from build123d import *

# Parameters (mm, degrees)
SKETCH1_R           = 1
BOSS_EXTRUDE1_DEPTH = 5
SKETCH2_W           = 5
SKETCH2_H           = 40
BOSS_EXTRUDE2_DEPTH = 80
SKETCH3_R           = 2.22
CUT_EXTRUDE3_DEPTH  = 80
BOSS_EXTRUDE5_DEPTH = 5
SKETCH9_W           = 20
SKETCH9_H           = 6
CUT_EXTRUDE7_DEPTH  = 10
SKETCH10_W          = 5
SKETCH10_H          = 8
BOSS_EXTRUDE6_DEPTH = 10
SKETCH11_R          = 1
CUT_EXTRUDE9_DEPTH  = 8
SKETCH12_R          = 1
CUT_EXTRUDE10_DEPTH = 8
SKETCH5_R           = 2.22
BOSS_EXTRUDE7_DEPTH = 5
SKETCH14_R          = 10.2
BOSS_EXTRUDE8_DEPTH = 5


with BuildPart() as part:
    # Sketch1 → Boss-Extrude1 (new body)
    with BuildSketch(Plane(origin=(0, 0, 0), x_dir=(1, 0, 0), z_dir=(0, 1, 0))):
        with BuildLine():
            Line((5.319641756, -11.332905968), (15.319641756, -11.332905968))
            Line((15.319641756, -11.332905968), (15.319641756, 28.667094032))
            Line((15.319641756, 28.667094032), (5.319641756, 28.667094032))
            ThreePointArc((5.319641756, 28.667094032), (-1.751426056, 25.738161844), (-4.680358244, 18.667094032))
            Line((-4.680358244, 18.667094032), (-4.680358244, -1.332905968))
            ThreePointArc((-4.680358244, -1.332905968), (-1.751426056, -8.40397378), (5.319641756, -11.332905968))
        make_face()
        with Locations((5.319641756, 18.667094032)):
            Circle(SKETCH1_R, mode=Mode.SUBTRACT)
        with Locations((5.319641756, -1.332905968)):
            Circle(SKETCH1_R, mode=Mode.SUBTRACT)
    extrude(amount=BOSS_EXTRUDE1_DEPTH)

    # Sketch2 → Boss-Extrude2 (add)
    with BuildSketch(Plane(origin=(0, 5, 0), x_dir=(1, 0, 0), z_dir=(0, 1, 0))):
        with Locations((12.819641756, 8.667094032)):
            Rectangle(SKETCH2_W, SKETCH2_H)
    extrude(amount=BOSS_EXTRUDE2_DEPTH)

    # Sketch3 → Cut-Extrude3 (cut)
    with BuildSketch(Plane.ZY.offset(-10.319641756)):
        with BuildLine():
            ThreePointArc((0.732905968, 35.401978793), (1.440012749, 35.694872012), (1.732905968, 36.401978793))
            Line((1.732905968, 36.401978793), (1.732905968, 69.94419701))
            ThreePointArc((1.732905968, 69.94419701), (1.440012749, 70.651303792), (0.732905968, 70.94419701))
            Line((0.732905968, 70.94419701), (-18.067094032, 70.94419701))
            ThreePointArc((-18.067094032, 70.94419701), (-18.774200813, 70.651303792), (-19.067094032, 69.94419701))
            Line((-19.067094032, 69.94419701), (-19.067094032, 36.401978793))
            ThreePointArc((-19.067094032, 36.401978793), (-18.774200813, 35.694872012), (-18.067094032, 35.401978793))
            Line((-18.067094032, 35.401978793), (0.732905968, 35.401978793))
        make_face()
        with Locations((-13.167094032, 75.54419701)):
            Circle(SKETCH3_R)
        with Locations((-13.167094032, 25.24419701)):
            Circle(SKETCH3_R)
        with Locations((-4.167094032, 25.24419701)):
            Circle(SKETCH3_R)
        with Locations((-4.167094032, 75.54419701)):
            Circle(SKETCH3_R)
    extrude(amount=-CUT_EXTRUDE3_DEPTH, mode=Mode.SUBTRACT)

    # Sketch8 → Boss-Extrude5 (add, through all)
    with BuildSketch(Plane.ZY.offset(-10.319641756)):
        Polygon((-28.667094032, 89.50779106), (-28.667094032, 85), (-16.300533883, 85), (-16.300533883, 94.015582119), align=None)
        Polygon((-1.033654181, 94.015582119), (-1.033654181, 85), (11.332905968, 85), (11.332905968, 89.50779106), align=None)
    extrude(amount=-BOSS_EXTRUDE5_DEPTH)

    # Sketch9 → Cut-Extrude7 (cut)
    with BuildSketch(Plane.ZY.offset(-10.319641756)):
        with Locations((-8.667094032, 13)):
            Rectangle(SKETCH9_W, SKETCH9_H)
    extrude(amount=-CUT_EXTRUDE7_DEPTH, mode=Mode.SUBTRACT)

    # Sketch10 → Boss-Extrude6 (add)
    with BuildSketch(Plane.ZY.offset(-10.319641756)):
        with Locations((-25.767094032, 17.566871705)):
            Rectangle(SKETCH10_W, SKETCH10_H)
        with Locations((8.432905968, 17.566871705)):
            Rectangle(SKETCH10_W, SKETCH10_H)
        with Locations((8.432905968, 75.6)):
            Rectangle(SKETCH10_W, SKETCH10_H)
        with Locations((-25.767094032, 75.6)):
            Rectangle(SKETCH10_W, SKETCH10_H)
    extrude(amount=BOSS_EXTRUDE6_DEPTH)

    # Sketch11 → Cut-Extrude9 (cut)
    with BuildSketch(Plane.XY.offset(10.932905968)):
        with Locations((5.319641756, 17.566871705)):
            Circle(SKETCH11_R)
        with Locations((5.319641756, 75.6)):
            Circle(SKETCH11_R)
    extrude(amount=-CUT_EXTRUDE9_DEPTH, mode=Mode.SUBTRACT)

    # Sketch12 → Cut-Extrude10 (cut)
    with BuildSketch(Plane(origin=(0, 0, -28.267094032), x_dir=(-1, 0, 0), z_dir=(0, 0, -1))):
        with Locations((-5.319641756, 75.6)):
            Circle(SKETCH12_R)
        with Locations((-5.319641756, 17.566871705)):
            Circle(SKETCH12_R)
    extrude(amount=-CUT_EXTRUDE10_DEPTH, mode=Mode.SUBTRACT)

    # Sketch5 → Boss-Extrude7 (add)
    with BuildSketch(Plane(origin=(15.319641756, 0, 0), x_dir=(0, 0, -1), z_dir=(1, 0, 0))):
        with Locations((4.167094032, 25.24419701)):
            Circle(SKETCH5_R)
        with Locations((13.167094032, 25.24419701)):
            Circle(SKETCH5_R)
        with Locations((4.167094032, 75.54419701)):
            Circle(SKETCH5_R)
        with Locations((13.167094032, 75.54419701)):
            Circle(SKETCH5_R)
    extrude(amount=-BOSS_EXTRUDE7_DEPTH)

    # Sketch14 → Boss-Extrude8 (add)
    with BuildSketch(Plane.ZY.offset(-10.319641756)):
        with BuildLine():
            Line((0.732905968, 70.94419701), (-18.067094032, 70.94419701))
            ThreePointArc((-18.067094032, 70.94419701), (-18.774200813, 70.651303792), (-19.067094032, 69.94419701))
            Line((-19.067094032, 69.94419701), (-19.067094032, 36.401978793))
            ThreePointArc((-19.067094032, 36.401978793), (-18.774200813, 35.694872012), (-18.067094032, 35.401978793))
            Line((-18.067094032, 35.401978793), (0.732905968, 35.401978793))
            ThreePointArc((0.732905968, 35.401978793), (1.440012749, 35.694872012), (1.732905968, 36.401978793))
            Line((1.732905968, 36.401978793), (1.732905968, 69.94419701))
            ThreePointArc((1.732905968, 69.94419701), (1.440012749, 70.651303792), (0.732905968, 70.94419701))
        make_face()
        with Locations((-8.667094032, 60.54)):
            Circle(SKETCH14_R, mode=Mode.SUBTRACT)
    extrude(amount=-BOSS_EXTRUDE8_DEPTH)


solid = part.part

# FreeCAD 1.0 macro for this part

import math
import FreeCAD as App
import Part
import Sketcher


def add_polygon(sketch, points):
    """Adds a closed chain of lines whose ends are joined by coincident constraints."""
    first, n = sketch.GeometryCount, len(points)
    for a, b in zip(points, points[1:] + points[:1]):
        sketch.addGeometry(Part.LineSegment(App.Vector(*a, 0), App.Vector(*b, 0)), False)
    for i in range(n):
        sketch.addConstraint(Sketcher.Constraint("Coincident", first + i, 2, first + (i + 1) % n, 1))

doc = App.newDocument("Part")
body = doc.addObject("PartDesign::Body", "Body")

sketch1 = body.newObject("Sketcher::SketchObject", "Sketch")
sketch1.AttachmentSupport = (doc.getObject("XZ_Plane"), [""])
sketch1.MapMode = "FlatFace"
sketch1.addGeometry([
    Part.LineSegment(App.Vector(5.319642, 11.332906, 0), App.Vector(15.319642, 11.332906, 0)),
    Part.LineSegment(App.Vector(15.319642, 11.332906, 0), App.Vector(15.319642, -28.667094, 0)),
    Part.LineSegment(App.Vector(15.319642, -28.667094, 0), App.Vector(5.319642, -28.667094, 0)),
    Part.ArcOfCircle(Part.Circle(App.Vector(5.319642, -18.667094, 0), App.Vector(0, 0, 1), 10), math.radians(180), math.radians(270)),
    Part.LineSegment(App.Vector(-4.680358, -18.667094, 0), App.Vector(-4.680358, 1.332906, 0)),
    Part.ArcOfCircle(Part.Circle(App.Vector(5.319642, 1.332906, 0), App.Vector(0, 0, 1), 10), math.radians(90), math.radians(180)),
    Part.Circle(App.Vector(5.319642, 1.332906, 0), App.Vector(0, 0, 1), 1),
    Part.Circle(App.Vector(5.319642, -18.667094, 0), App.Vector(0, 0, 1), 1),
], False)
sketch1.addConstraint([
    Sketcher.Constraint("Coincident", 0, 2, 1, 1),
    Sketcher.Constraint("Coincident", 1, 2, 2, 1),
    Sketcher.Constraint("Tangent", 2, 2, 3, 2),
    Sketcher.Constraint("Tangent", 3, 1, 4, 1),
    Sketcher.Constraint("Tangent", 4, 2, 5, 2),
    Sketcher.Constraint("Tangent", 5, 1, 0, 1),
    Sketcher.Constraint("Horizontal", 0),
    Sketcher.Constraint("Vertical", 1),
    Sketcher.Constraint("Horizontal", 2),
    Sketcher.Constraint("Vertical", 4),
    Sketcher.Constraint("Coincident", 6, 3, 5, 3),
    Sketcher.Constraint("Coincident", 7, 3, 3, 3),
    Sketcher.Constraint("Equal", 3, 5),
    Sketcher.Constraint("Equal", 6, 7),
    Sketcher.Constraint("Diameter", 6, 2.0),
    Sketcher.Constraint("Radius", 3, 10.0),
    Sketcher.Constraint("DistanceX", 0, 1, 0, 2, 10.0),
    Sketcher.Constraint("DistanceY", 1, 2, 1, 1, 40.0),
    Sketcher.Constraint("DistanceX", -1, 1, 3, 3, 5.319642),
    Sketcher.Constraint("DistanceY", 3, 3, -1, 1, 18.667094),
])
pad1 = body.newObject("PartDesign::Pad", "Pad")
pad1.Profile = sketch1
pad1.Length = 5
pad1.Reversed = True

sketch2 = body.newObject("Sketcher::SketchObject", "Sketch001")
sketch2.AttachmentSupport = (doc.getObject("XZ_Plane"), [""])
sketch2.MapMode = "FlatFace"
sketch2.AttachmentOffset = App.Placement(App.Vector(0, 0, -5), App.Rotation())
add_polygon(sketch2, [(10.319642, -28.667094), (10.319642, 11.332906), (15.319642, 11.332906), (15.319642, -28.667094)])
sketch2.addConstraint([
    Sketcher.Constraint("Vertical", 0),
    Sketcher.Constraint("Horizontal", 1),
    Sketcher.Constraint("Vertical", 2),
    Sketcher.Constraint("Horizontal", 3),
    Sketcher.Constraint("DistanceX", 1, 1, 1, 2, 5.0),
    Sketcher.Constraint("DistanceY", 0, 1, 0, 2, 40.0),
    Sketcher.Constraint("DistanceX", -1, 1, 0, 2, 10.319642),
    Sketcher.Constraint("DistanceY", -1, 1, 0, 2, 11.332906),
])
pad2 = body.newObject("PartDesign::Pad", "Pad001")
pad2.Profile = sketch2
pad2.Length = 80
pad2.Reversed = True

sketch3 = body.newObject("Sketcher::SketchObject", "Sketch002")
sketch3.AttachmentSupport = (doc.getObject("YZ_Plane"), [""])
sketch3.MapMode = "FlatFace"
sketch3.AttachmentOffset = App.Placement(App.Vector(0, 0, 10.319642), App.Rotation())
sketch3.addGeometry([
    Part.ArcOfCircle(Part.Circle(App.Vector(36.401979, 0.732906, 0), App.Vector(0, 0, 1), 1), math.radians(90), math.radians(180)),
    Part.LineSegment(App.Vector(36.401979, 1.732906, 0), App.Vector(69.944197, 1.732906, 0)),
    Part.ArcOfCircle(Part.Circle(App.Vector(69.944197, 0.732906, 0), App.Vector(0, 0, 1), 1), math.radians(0), math.radians(90)),
    Part.LineSegment(App.Vector(70.944197, 0.732906, 0), App.Vector(70.944197, -18.067094, 0)),
    Part.ArcOfCircle(Part.Circle(App.Vector(69.944197, -18.067094, 0), App.Vector(0, 0, 1), 1), math.radians(-90), math.radians(0)),
    Part.LineSegment(App.Vector(69.944197, -19.067094, 0), App.Vector(36.401979, -19.067094, 0)),
    Part.ArcOfCircle(Part.Circle(App.Vector(36.401979, -18.067094, 0), App.Vector(0, 0, 1), 1), math.radians(-180), math.radians(-90)),
    Part.LineSegment(App.Vector(35.401979, -18.067094, 0), App.Vector(35.401979, 0.732906, 0)),
    Part.Circle(App.Vector(75.544197, -13.167094, 0), App.Vector(0, 0, 1), 2.22),
    Part.Circle(App.Vector(25.244197, -13.167094, 0), App.Vector(0, 0, 1), 2.22),
    Part.Circle(App.Vector(25.244197, -4.167094, 0), App.Vector(0, 0, 1), 2.22),
    Part.Circle(App.Vector(75.544197, -4.167094, 0), App.Vector(0, 0, 1), 2.22),
], False)
sketch3.addConstraint([
    Sketcher.Constraint("Tangent", 0, 1, 1, 1),
    Sketcher.Constraint("Tangent", 1, 2, 2, 2),
    Sketcher.Constraint("Tangent", 2, 1, 3, 1),
    Sketcher.Constraint("Tangent", 3, 2, 4, 2),
    Sketcher.Constraint("Tangent", 4, 1, 5, 1),
    Sketcher.Constraint("Tangent", 5, 2, 6, 2),
    Sketcher.Constraint("Tangent", 6, 1, 7, 1),
    Sketcher.Constraint("Tangent", 7, 2, 0, 2),
    Sketcher.Constraint("Horizontal", 1),
    Sketcher.Constraint("Vertical", 3),
    Sketcher.Constraint("Horizontal", 5),
    Sketcher.Constraint("Vertical", 7),
    Sketcher.Constraint("Equal", 0, 2),
    Sketcher.Constraint("Equal", 2, 4),
    Sketcher.Constraint("Equal", 4, 6),
    Sketcher.Constraint("Equal", 8, 9),
    Sketcher.Constraint("Equal", 9, 10),
    Sketcher.Constraint("Equal", 10, 11),
    Sketcher.Constraint("Horizontal", 8, 3, 9, 3),
    Sketcher.Constraint("Horizontal", 10, 3, 11, 3),
    Sketcher.Constraint("Vertical", 9, 3, 10, 3),
    Sketcher.Constraint("Vertical", 8, 3, 11, 3),
    Sketcher.Constraint("Radius", 0, 1.0),
    Sketcher.Constraint("Diameter", 8, 4.44),
    Sketcher.Constraint("DistanceY", 3, 2, 3, 1, 18.8),
    Sketcher.Constraint("DistanceY", 9, 3, 10, 3, 9.0),
    Sketcher.Constraint("DistanceX", 4, 3, 8, 3, 5.6),
    Sketcher.Constraint("DistanceY", 4, 3, 8, 3, 4.9),
    Sketcher.Constraint("DistanceX", 9, 3, 4, 3, 44.7),
    Sketcher.Constraint("DistanceX", 1, 1, 1, 2, 33.542218),
    Sketcher.Constraint("DistanceX", -1, 1, 0, 3, 36.401979),
    Sketcher.Constraint("DistanceY", -1, 1, 0, 3, 0.732906),
])
pocket1 = body.newObject("PartDesign::Pocket", "Pocket")
pocket1.Profile = sketch3
pocket1.Length = 80
pocket1.Reversed = True

sketch4 = body.newObject("Sketcher::SketchObject", "Sketch003")
sketch4.AttachmentSupport = (doc.getObject("YZ_Plane"), [""])
sketch4.MapMode = "FlatFace"
sketch4.AttachmentOffset = App.Placement(App.Vector(0, 0, 10.319642), App.Rotation())
add_polygon(sketch4, [(89.507791, -28.667094), (85, -28.667094), (85, -16.300534), (94.015582, -16.300534)])
add_polygon(sketch4, [(94.015582, -1.033654), (85, -1.033654), (85, 11.332906), (89.507791, 11.332906)])
sketch4.addConstraint([
    Sketcher.Constraint("Horizontal", 0),
    Sketcher.Constraint("Vertical", 1),
    Sketcher.Constraint("Horizontal", 2),
    Sketcher.Constraint("Horizontal", 4),
    Sketcher.Constraint("Vertical", 5),
    Sketcher.Constraint("Horizontal", 6),
    Sketcher.Constraint("Vertical", 1, 2, 4, 2),
    Sketcher.Constraint("Vertical", 3, 2, 6, 2),
    Sketcher.Constraint("Vertical", 2, 2, 7, 2),
    Sketcher.Constraint("Equal", 1, 5),
    Sketcher.Constraint("DistanceX", -1, 1, 0, 2, 85.0),
    Sketcher.Constraint("DistanceY", 0, 2, 5, 2, 40.0),
    Sketcher.Constraint("DistanceX", 0, 2, 0, 1, 4.507791),
    Sketcher.Constraint("DistanceY", 1, 1, 1, 2, 12.36656),
    Sketcher.Constraint("DistanceX", 2, 1, 2, 2, 9.015582),
    Sketcher.Constraint("DistanceY", 0, 2, -1, 1, 28.667094),
])
pad3 = body.newObject("PartDesign::Pad", "Pad002")
pad3.Profile = sketch4
pad3.Length = 5

sketch5 = body.newObject("Sketcher::SketchObject", "Sketch004")
sketch5.AttachmentSupport = (doc.getObject("YZ_Plane"), [""])
sketch5.MapMode = "FlatFace"
sketch5.AttachmentOffset = App.Placement(App.Vector(0, 0, 10.319642), App.Rotation())
add_polygon(sketch5, [(16, -18.667094), (10, -18.667094), (10, 1.332906), (16, 1.332906)])
sketch5.addConstraint([
    Sketcher.Constraint("Horizontal", 0),
    Sketcher.Constraint("Vertical", 1),
    Sketcher.Constraint("Horizontal", 2),
    Sketcher.Constraint("Vertical", 3),
    Sketcher.Constraint("DistanceX", 0, 2, 0, 1, 6.0),
    Sketcher.Constraint("DistanceY", 1, 1, 1, 2, 20.0),
    Sketcher.Constraint("DistanceX", -1, 1, 0, 2, 10.0),
    Sketcher.Constraint("DistanceY", 0, 2, -1, 1, 18.667094),
])
pocket2 = body.newObject("PartDesign::Pocket", "Pocket001")
pocket2.Profile = sketch5
pocket2.Length = 10
pocket2.Reversed = True

sketch6 = body.newObject("Sketcher::SketchObject", "Sketch005")
sketch6.AttachmentSupport = (doc.getObject("YZ_Plane"), [""])
sketch6.MapMode = "FlatFace"
sketch6.AttachmentOffset = App.Placement(App.Vector(0, 0, 10.319642), App.Rotation())
add_polygon(sketch6, [(21.566872, -28.267094), (13.566872, -28.267094), (13.566872, -23.267094), (21.566872, -23.267094)])
add_polygon(sketch6, [(21.566872, 5.932906), (13.566872, 5.932906), (13.566872, 10.932906), (21.566872, 10.932906)])
add_polygon(sketch6, [(79.6, 5.932906), (71.6, 5.932906), (71.6, 10.932906), (79.6, 10.932906)])
add_polygon(sketch6, [(79.6, -28.267094), (71.6, -28.267094), (71.6, -23.267094), (79.6, -23.267094)])
sketch6.addConstraint([
    Sketcher.Constraint("Horizontal", 0),
    Sketcher.Constraint("Vertical", 1),
    Sketcher.Constraint("Horizontal", 2),
    Sketcher.Constraint("Vertical", 3),
    Sketcher.Constraint("Horizontal", 4),
    Sketcher.Constraint("Vertical", 5),
    Sketcher.Constraint("Horizontal", 6),
    Sketcher.Constraint("Vertical", 7),
    Sketcher.Constraint("Horizontal", 8),
    Sketcher.Constraint("Vertical", 9),
    Sketcher.Constraint("Horizontal", 10),
    Sketcher.Constraint("Vertical", 11),
    Sketcher.Constraint("Horizontal", 12),
    Sketcher.Constraint("Vertical", 13),
    Sketcher.Constraint("Horizontal", 14),
    Sketcher.Constraint("Vertical", 15),
    Sketcher.Constraint("Horizontal", 7, 2, 8, 2),
    Sketcher.Constraint("Horizontal", 6, 2, 9, 2),
    Sketcher.Constraint("Horizontal", 3, 2, 12, 2),
    Sketcher.Constraint("Horizontal", 2, 2, 13, 2),
    Sketcher.Constraint("Vertical", 1, 2, 4, 2),
    Sketcher.Constraint("Vertical", 3, 2, 6, 2),
    Sketcher.Constraint("Vertical", 9, 2, 12, 2),
    Sketcher.Constraint("Vertical", 11, 2, 14, 2),
    Sketcher.Constraint("Equal", 6, 8),
    Sketcher.Constraint("Equal", 3, 5),
    Sketcher.Constraint("DistanceX", 0, 2, 0, 1, 8.0),
    Sketcher.Constraint("DistanceY", 1, 1, 1, 2, 5.0),
    Sketcher.Constraint("DistanceX", -1, 1, 8, 2, 71.6),
    Sketcher.Constraint("DistanceY", 1, 2, 4, 2, 29.2),
    Sketcher.Constraint("DistanceX", -1, 1, 0, 2, 13.566872),
    Sketcher.Constraint("DistanceY", 0, 2, -1, 1, 28.267094),
])
pad4 = body.newObject("PartDesign::Pad", "Pad003")
pad4.Profile = sketch6
pad4.Length = 10
pad4.Reversed = True

sketch7 = body.newObject("Sketcher::SketchObject", "Sketch006")
sketch7.AttachmentSupport = (doc.getObject("XY_Plane"), [""])
sketch7.MapMode = "FlatFace"
sketch7.AttachmentOffset = App.Placement(App.Vector(0, 0, 10.932906), App.Rotation())
sketch7.addGeometry([
    Part.Circle(App.Vector(5.319642, 17.566872, 0), App.Vector(0, 0, 1), 1),
    Part.Circle(App.Vector(5.319642, 75.6, 0), App.Vector(0, 0, 1), 1),
], False)
sketch7.addConstraint([
    Sketcher.Constraint("Equal", 0, 1),
    Sketcher.Constraint("Vertical", 0, 3, 1, 3),
    Sketcher.Constraint("Diameter", 0, 2.0),
    Sketcher.Constraint("DistanceY", -1, 1, 1, 3, 75.6),
    Sketcher.Constraint("DistanceX", -1, 1, 0, 3, 5.319642),
    Sketcher.Constraint("DistanceY", -1, 1, 0, 3, 17.566872),
])
pocket3 = body.newObject("PartDesign::Pocket", "Pocket002")
pocket3.Profile = sketch7
pocket3.Length = 8

sketch8 = body.newObject("Sketcher::SketchObject", "Sketch007")
sketch8.AttachmentSupport = (doc.getObject("XY_Plane"), [""])
sketch8.MapMode = "FlatFace"
sketch8.AttachmentOffset = App.Placement(App.Vector(0, 0, -28.267094), App.Rotation())
sketch8.addGeometry([
    Part.Circle(App.Vector(5.319642, 75.6, 0), App.Vector(0, 0, 1), 1),
    Part.Circle(App.Vector(5.319642, 17.566872, 0), App.Vector(0, 0, 1), 1),
], False)
sketch8.addConstraint([
    Sketcher.Constraint("Equal", 0, 1),
    Sketcher.Constraint("Vertical", 0, 3, 1, 3),
    Sketcher.Constraint("Diameter", 0, 2.0),
    Sketcher.Constraint("DistanceY", -1, 1, 0, 3, 75.6),
    Sketcher.Constraint("DistanceX", -1, 1, 0, 3, 5.319642),
    Sketcher.Constraint("DistanceY", -1, 1, 1, 3, 17.566872),
])
pocket4 = body.newObject("PartDesign::Pocket", "Pocket003")
pocket4.Profile = sketch8
pocket4.Length = 8
pocket4.Reversed = True

sketch9 = body.newObject("Sketcher::SketchObject", "Sketch008")
sketch9.AttachmentSupport = (doc.getObject("YZ_Plane"), [""])
sketch9.MapMode = "FlatFace"
sketch9.AttachmentOffset = App.Placement(App.Vector(0, 0, 15.319642), App.Rotation())
sketch9.addGeometry([
    Part.Circle(App.Vector(25.244197, -4.167094, 0), App.Vector(0, 0, 1), 2.22),
    Part.Circle(App.Vector(25.244197, -13.167094, 0), App.Vector(0, 0, 1), 2.22),
    Part.Circle(App.Vector(75.544197, -4.167094, 0), App.Vector(0, 0, 1), 2.22),
    Part.Circle(App.Vector(75.544197, -13.167094, 0), App.Vector(0, 0, 1), 2.22),
], False)
sketch9.addConstraint([
    Sketcher.Constraint("Equal", 0, 1),
    Sketcher.Constraint("Equal", 1, 2),
    Sketcher.Constraint("Equal", 2, 3),
    Sketcher.Constraint("Horizontal", 0, 3, 2, 3),
    Sketcher.Constraint("Horizontal", 1, 3, 3, 3),
    Sketcher.Constraint("Vertical", 0, 3, 1, 3),
    Sketcher.Constraint("Vertical", 2, 3, 3, 3),
    Sketcher.Constraint("Diameter", 0, 4.44),
    Sketcher.Constraint("DistanceY", 1, 3, 0, 3, 9.0),
    Sketcher.Constraint("DistanceX", 0, 3, 2, 3, 50.3),
    Sketcher.Constraint("DistanceX", -1, 1, 0, 3, 25.244197),
    Sketcher.Constraint("DistanceY", 0, 3, -1, 1, 4.167094),
])
pad5 = body.newObject("PartDesign::Pad", "Pad004")
pad5.Profile = sketch9
pad5.Length = 5
pad5.Reversed = True

sketch10 = body.newObject("Sketcher::SketchObject", "Sketch009")
sketch10.AttachmentSupport = (doc.getObject("YZ_Plane"), [""])
sketch10.MapMode = "FlatFace"
sketch10.AttachmentOffset = App.Placement(App.Vector(0, 0, 10.319642), App.Rotation())
sketch10.addGeometry([
    Part.LineSegment(App.Vector(70.944197, 0.732906, 0), App.Vector(70.944197, -18.067094, 0)),
    Part.ArcOfCircle(Part.Circle(App.Vector(69.944197, -18.067094, 0), App.Vector(0, 0, 1), 1), math.radians(-90), math.radians(0)),
    Part.LineSegment(App.Vector(69.944197, -19.067094, 0), App.Vector(36.401979, -19.067094, 0)),
    Part.ArcOfCircle(Part.Circle(App.Vector(36.401979, -18.067094, 0), App.Vector(0, 0, 1), 1), math.radians(-180), math.radians(-90)),
    Part.LineSegment(App.Vector(35.401979, -18.067094, 0), App.Vector(35.401979, 0.732906, 0)),
    Part.ArcOfCircle(Part.Circle(App.Vector(36.401979, 0.732906, 0), App.Vector(0, 0, 1), 1), math.radians(90), math.radians(180)),
    Part.LineSegment(App.Vector(36.401979, 1.732906, 0), App.Vector(69.944197, 1.732906, 0)),
    Part.ArcOfCircle(Part.Circle(App.Vector(69.944197, 0.732906, 0), App.Vector(0, 0, 1), 1), math.radians(0), math.radians(90)),
    Part.Circle(App.Vector(60.54, -8.667094, 0), App.Vector(0, 0, 1), 10.2),
], False)
sketch10.addConstraint([
    Sketcher.Constraint("Tangent", 0, 2, 1, 2),
    Sketcher.Constraint("Tangent", 1, 1, 2, 1),
    Sketcher.Constraint("Tangent", 2, 2, 3, 2),
    Sketcher.Constraint("Tangent", 3, 1, 4, 1),
    Sketcher.Constraint("Tangent", 4, 2, 5, 2),
    Sketcher.Constraint("Tangent", 5, 1, 6, 1),
    Sketcher.Constraint("Tangent", 6, 2, 7, 2),
    Sketcher.Constraint("Tangent", 7, 1, 0, 1),
    Sketcher.Constraint("Vertical", 0),
    Sketcher.Constraint("Horizontal", 2),
    Sketcher.Constraint("Vertical", 4),
    Sketcher.Constraint("Horizontal", 6),
    Sketcher.Constraint("Equal", 1, 3),
    Sketcher.Constraint("Equal", 3, 5),
    Sketcher.Constraint("Equal", 5, 7),
    Sketcher.Constraint("Radius", 1, 1.0),
    Sketcher.Constraint("Diameter", 8, 20.4),
    Sketcher.Constraint("DistanceY", 0, 2, 0, 1, 18.8),
    Sketcher.Constraint("DistanceY", 1, 3, 8, 3, 9.4),
    Sketcher.Constraint("DistanceX", -1, 1, 8, 3, 60.54),
    Sketcher.Constraint("DistanceX", 2, 2, 2, 1, 33.542218),
    Sketcher.Constraint("DistanceX", -1, 1, 3, 3, 36.401979),
    Sketcher.Constraint("DistanceY", 1, 3, -1, 1, 18.067094),
])
pad6 = body.newObject("PartDesign::Pad", "Pad005")
pad6.Profile = sketch10
pad6.Length = 5

doc.recompute()
